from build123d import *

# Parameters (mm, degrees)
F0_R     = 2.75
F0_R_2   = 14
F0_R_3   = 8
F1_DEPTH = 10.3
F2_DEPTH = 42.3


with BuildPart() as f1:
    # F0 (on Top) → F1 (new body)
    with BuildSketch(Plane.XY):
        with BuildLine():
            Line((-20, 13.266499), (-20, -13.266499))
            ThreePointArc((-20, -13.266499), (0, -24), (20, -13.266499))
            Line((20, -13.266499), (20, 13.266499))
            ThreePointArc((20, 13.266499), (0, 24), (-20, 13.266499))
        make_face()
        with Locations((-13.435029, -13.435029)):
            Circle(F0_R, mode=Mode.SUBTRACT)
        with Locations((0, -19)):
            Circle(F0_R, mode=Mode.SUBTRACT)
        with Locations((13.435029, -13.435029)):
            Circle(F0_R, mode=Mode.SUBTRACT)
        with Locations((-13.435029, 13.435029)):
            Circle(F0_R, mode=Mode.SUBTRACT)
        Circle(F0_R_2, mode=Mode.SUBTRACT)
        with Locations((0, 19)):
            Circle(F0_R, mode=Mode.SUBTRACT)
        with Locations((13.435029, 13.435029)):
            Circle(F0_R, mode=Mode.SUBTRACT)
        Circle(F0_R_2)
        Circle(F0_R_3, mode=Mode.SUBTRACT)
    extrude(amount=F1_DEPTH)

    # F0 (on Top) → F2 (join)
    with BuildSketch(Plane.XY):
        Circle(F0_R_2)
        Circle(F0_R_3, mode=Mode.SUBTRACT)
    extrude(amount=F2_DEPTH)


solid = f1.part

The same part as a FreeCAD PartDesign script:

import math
import FreeCAD as App
import Part
import Sketcher
from FreeCAD import Vector
Q = App.Units.Quantity

doc = App.newDocument("Part")
body = doc.addObject("PartDesign::Body", "Body")

# Sketch on XY plane
sketch1 = body.newObject("Sketcher::SketchObject", "Sketch")
sketch1.AttachmentSupport = (doc.getObject("XY_Plane"), [""])
sketch1.MapMode = "FlatFace"
sketch1.addGeometry([
    Part.LineSegment(Vector(-20, 13.3, 0), Vector(-20, -13.3, 0)),  # 0
    Part.ArcOfCircle(Part.Circle(Vector(0, 0, 0), Vector(0, 0, 1), 24), math.radians(-146), math.radians(-34)),  # 1
    Part.LineSegment(Vector(20, -13.3, 0), Vector(20, 13.3, 0)),  # 2
    Part.ArcOfCircle(Part.Circle(Vector(0, 0, 0), Vector(0, 0, 1), 24), math.radians(34), math.radians(146)),  # 3
    Part.Circle(Vector(-13.4, -13.4, 0), Vector(0, 0, 1), 2.8),  # 4
    Part.Circle(Vector(0, -19, 0), Vector(0, 0, 1), 2.8),  # 5
    Part.Circle(Vector(13.4, -13.4, 0), Vector(0, 0, 1), 2.8),  # 6
    Part.Circle(Vector(-13.4, 13.4, 0), Vector(0, 0, 1), 2.8),  # 7
    Part.Circle(Vector(0, 0, 0), Vector(0, 0, 1), 8),  # 8
    Part.Circle(Vector(0, 19, 0), Vector(0, 0, 1), 2.8),  # 9
    Part.Circle(Vector(13.4, 13.4, 0), Vector(0, 0, 1), 2.8),  # 10
], False)
sketch1.addConstraint([
    Sketcher.Constraint("Coincident", 0, 2, 1, 1),
    Sketcher.Constraint("Coincident", 1, 2, 2, 1),
    Sketcher.Constraint("Coincident", 2, 2, 3, 1),
    Sketcher.Constraint("Coincident", 3, 2, 0, 1),
    Sketcher.Constraint("Vertical", 0),
    Sketcher.Constraint("Vertical", 2),
    Sketcher.Constraint("Coincident", 1, 3, -1, 1),
    Sketcher.Constraint("Coincident", 3, 3, -1, 1),
    Sketcher.Constraint("Coincident", 8, 3, -1, 1),
    Sketcher.Constraint("Equal", 1, 3),
    Sketcher.Constraint("Equal", 4, 5),
    Sketcher.Constraint("Equal", 5, 6),
    Sketcher.Constraint("Equal", 6, 7),
    Sketcher.Constraint("Equal", 7, 9),
    Sketcher.Constraint("Equal", 9, 10),
    Sketcher.Constraint("Symmetric", 6, 3, 7, 3, -1, 1),
    Sketcher.Constraint("Symmetric", 5, 3, 9, 3, -1, 1),
    Sketcher.Constraint("Symmetric", 4, 3, 10, 3, -1, 1),
    Sketcher.Constraint("Symmetric", 4, 3, 6, 3, -2),
    Sketcher.Constraint("PointOnObject", 5, 3, -2),
    Sketcher.Constraint("Horizontal", 0, 2, 1, 2),
    Sketcher.Constraint("Diameter", 8, Q("16 mm")),
    Sketcher.Constraint("Radius", 1, Q("24 mm")),
    Sketcher.Constraint("Diameter", 4, Q("5.5 mm")),
    Sketcher.Constraint("DistanceY", 5, 3, -1, 1, Q("19 mm")),
    Sketcher.Constraint("DistanceX", 0, 2, -1, 1, Q("20 mm")),
    Sketcher.Constraint("DistanceX", 4, 3, -1, 1, Q("13.435029 mm")),
    Sketcher.Constraint("DistanceY", 4, 3, -1, 1, Q("13.435029 mm")),
])
pad1 = body.newObject("PartDesign::Pad", "Pad")
pad1.Profile = sketch1
pad1.Length = 10.3

# Sketch on XY plane
sketch2 = body.newObject("Sketcher::SketchObject", "Sketch001")
sketch2.AttachmentSupport = (doc.getObject("XY_Plane"), [""])
sketch2.MapMode = "FlatFace"
sketch2.addGeometry([
    Part.Circle(Vector(0, 0, 0), Vector(0, 0, 1), 14),
    Part.Circle(Vector(0, 0, 0), Vector(0, 0, 1), 8),
], False)
sketch2.addConstraint([
    Sketcher.Constraint("Coincident", 0, 3, -1, 1),
    Sketcher.Constraint("Coincident", 1, 3, -1, 1),
    Sketcher.Constraint("Diameter", 0, Q("28 mm")),
    Sketcher.Constraint("Diameter", 1, Q("16 mm")),
])
pad2 = body.newObject("PartDesign::Pad", "Pad001")
pad2.Profile = sketch2
pad2.Length = 42.3

doc.recompute()
